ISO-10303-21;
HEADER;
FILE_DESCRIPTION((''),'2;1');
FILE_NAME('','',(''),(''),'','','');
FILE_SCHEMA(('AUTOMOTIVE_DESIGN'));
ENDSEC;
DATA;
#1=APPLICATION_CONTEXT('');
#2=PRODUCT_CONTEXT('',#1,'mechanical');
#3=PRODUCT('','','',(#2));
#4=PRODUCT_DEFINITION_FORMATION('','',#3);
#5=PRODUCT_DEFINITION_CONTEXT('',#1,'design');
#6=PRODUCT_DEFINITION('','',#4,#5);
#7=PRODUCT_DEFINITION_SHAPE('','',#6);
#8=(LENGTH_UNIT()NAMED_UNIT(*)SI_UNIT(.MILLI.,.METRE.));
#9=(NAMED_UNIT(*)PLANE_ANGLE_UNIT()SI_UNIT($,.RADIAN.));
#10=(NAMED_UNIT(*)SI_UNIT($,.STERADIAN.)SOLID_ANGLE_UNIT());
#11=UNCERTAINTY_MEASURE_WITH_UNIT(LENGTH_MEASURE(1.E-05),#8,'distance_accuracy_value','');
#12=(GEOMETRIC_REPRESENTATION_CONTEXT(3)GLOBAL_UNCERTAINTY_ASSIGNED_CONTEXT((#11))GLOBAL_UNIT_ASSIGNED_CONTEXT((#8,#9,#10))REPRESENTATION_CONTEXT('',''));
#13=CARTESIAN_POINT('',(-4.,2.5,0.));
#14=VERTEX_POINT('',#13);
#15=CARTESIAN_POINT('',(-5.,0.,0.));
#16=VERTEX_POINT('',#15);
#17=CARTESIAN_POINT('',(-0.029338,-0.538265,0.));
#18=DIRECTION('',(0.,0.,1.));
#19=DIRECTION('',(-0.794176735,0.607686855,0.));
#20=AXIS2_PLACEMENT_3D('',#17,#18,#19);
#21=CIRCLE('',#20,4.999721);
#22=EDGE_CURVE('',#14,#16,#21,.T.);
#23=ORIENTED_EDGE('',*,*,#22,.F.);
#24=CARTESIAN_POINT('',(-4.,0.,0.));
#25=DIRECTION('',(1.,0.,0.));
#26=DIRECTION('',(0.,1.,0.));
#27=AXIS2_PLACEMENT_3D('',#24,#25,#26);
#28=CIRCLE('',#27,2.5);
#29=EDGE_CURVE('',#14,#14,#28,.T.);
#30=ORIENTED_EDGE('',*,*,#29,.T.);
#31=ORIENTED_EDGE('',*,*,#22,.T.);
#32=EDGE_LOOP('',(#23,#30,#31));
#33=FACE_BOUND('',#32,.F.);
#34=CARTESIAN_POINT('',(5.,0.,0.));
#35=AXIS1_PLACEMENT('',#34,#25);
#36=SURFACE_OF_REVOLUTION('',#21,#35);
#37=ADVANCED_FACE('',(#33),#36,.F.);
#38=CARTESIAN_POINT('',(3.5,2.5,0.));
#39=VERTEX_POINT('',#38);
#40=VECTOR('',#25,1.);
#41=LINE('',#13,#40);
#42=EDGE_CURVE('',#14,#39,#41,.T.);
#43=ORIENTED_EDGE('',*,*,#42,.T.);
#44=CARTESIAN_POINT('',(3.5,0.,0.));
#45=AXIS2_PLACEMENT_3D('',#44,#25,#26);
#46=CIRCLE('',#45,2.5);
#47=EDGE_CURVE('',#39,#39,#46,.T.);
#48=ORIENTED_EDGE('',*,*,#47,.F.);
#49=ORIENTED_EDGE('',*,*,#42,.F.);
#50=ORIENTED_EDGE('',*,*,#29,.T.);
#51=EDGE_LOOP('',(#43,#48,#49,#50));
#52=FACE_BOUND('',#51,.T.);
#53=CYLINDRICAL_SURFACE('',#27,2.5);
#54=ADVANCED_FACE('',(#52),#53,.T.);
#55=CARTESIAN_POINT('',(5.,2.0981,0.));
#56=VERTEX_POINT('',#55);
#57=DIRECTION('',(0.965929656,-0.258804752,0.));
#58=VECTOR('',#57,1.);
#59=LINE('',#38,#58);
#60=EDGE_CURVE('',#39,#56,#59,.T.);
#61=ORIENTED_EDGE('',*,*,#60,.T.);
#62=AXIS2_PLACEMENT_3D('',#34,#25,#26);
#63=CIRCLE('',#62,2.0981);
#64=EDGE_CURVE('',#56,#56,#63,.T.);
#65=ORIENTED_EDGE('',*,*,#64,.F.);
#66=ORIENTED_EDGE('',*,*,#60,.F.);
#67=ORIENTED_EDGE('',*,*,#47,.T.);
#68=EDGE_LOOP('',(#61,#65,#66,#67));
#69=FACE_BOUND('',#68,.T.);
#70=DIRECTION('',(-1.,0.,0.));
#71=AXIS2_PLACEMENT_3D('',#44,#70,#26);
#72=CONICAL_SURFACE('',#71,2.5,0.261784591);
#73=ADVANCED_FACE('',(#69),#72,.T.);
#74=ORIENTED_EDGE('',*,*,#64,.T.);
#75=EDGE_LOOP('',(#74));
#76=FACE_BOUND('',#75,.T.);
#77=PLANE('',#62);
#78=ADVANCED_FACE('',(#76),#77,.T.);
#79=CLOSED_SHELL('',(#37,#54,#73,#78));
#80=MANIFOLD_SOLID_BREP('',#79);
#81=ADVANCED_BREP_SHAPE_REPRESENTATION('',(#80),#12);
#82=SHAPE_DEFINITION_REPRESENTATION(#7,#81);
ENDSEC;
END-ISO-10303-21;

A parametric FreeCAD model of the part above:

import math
import FreeCAD as App
import Part
import Sketcher
Q = App.Units.Quantity

doc = App.newDocument("Part")
body = doc.addObject("PartDesign::Body", "Body")

sketch1 = doc.addObject("Sketcher::SketchObject", "Sketch")
body.addObject(sketch1)
sketch1.AttachmentSupport = (doc.XY_Plane, [""])
sketch1.MapMode = "FlatFace"
sketch1.addGeometry([
    Part.LineSegment(App.Vector(-5, 0, 0), App.Vector(5, 0, 0)),
    Part.LineSegment(App.Vector(5, 0, 0), App.Vector(5, 2.0981, 0)),
    Part.LineSegment(App.Vector(5, 2.0981, 0), App.Vector(3.5, 2.5, 0)),
    Part.LineSegment(App.Vector(3.5, 2.5, 0), App.Vector(-4, 2.5, 0)),
    Part.ArcOfCircle(Part.Circle(App.Vector(-0.0291, -0.5384, 0), App.Vector(0, 0, 1), 4.999992), math.radians(142.577991), math.radians(173.81837)),
], False)
sketch1.addConstraint([
    Sketcher.Constraint("Coincident", 0, 2, 1, 1),
    Sketcher.Constraint("Coincident", 1, 2, 2, 1),
    Sketcher.Constraint("Coincident", 2, 2, 3, 1),
    Sketcher.Constraint("Coincident", 3, 2, 4, 1),
    Sketcher.Constraint("Coincident", 4, 2, 0, 1),
    Sketcher.Constraint("Horizontal", 0),
    Sketcher.Constraint("Vertical", 1),
    Sketcher.Constraint("Horizontal", 3),
    Sketcher.Constraint("Symmetric", 0, 2, 4, 2, -1, 1),
    Sketcher.Constraint("Radius", 4, 5.0),
    Sketcher.Constraint("DistanceX", 0, 1, 0, 2, 10.0),
    Sketcher.Constraint("Angle", 2, Q("165.0008 deg")),
    Sketcher.Constraint("DistanceX", 3, 2, 3, 1, 7.5),
    Sketcher.Constraint("DistanceX", 3, 2, -1, 1, 4.0),
    Sketcher.Constraint("DistanceY", -1, 1, 2, 2, 2.5),
])
revolution = doc.addObject("PartDesign::Revolution", "Revolution")
body.addObject(revolution)
revolution.Profile = sketch1
revolution.ReferenceAxis = (sketch1, ["H_Axis"])
revolution.Angle = 360

doc.recompute()
